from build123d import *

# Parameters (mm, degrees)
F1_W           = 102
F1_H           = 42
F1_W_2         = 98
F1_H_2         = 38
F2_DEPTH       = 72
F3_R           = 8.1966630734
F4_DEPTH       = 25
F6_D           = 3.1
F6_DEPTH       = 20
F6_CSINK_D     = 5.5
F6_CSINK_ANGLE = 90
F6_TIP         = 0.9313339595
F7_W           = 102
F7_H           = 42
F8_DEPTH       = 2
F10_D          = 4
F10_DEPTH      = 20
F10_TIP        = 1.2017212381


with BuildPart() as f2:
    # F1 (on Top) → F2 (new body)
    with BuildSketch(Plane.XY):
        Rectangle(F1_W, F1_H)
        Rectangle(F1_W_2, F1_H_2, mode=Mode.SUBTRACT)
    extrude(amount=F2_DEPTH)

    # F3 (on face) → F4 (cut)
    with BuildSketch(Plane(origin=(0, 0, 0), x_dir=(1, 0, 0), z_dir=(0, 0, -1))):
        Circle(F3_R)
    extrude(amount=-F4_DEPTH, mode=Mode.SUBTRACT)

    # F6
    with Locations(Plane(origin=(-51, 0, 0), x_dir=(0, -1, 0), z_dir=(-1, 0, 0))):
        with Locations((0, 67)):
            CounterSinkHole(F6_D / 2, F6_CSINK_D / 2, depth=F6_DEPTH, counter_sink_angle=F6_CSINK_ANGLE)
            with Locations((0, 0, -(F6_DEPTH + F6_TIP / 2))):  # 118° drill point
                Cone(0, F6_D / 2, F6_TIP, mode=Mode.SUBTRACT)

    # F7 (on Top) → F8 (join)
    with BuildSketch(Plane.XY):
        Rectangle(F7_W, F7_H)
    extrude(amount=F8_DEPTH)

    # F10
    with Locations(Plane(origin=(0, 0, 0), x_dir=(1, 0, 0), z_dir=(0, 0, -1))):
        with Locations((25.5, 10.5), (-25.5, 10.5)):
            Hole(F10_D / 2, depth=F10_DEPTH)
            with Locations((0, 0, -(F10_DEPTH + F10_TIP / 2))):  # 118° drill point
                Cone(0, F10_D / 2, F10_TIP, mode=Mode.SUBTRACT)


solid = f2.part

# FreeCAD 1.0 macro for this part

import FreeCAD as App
import Part
import Sketcher
from FreeCAD import Vector
Q = App.Units.Quantity


def add_polygon(sketch, points):
    """Adds a closed chain of lines whose ends are joined by coincident constraints."""
    first, n = sketch.GeometryCount, len(points)
    for a, b in zip(points, points[1:] + points[:1]):
        sketch.addGeometry(Part.LineSegment(App.Vector(*a, 0), App.Vector(*b, 0)), False)
    for i in range(n):
        sketch.addConstraint(Sketcher.Constraint("Coincident", first + i, 2, first + (i + 1) % n, 1))

doc = App.newDocument("Part")
body = doc.addObject("PartDesign::Body", "Body")

# Sketch on XY plane
sketch1 = doc.addObject("Sketcher::SketchObject", "Sketch")
body.addObject(sketch1)
sketch1.AttachmentSupport = (doc.XY_Plane, [""])
sketch1.MapMode = "FlatFace"
add_polygon(sketch1, [(-51, 21), (-51, -21), (51, -21), (51, 21)])  # lines 0-3
add_polygon(sketch1, [(49, -19), (-49, -19), (-49, 19), (49, 19)])  # lines 4-7
sketch1.addConstraint([
    Sketcher.Constraint("Vertical", 0),
    Sketcher.Constraint("Horizontal", 1),
    Sketcher.Constraint("Vertical", 2),
    Sketcher.Constraint("Horizontal", 3),
    Sketcher.Constraint("Horizontal", 4),
    Sketcher.Constraint("Vertical", 5),
    Sketcher.Constraint("Horizontal", 6),
    Sketcher.Constraint("Vertical", 7),
    Sketcher.Constraint("Symmetric", 0, 2, 2, 2, -1, 1),
    Sketcher.Constraint("Symmetric", 4, 2, 6, 2, -1, 1),
    Sketcher.Constraint("DistanceX", 1, 1, 1, 2, Q("102 mm")),
    Sketcher.Constraint("DistanceX", 4, 2, 4, 1, Q("98 mm")),
    Sketcher.Constraint("DistanceY", 0, 2, 0, 1, Q("42 mm")),
    Sketcher.Constraint("DistanceY", 5, 1, 5, 2, Q("38 mm")),
])
pad1 = doc.addObject("PartDesign::Pad", "Pad")
body.addObject(pad1)
pad1.Profile = sketch1
pad1.Length = 72

# Sketch on XY plane
sketch2 = doc.addObject("Sketcher::SketchObject", "Sketch001")
body.addObject(sketch2)
sketch2.AttachmentSupport = (doc.XY_Plane, [""])
sketch2.MapMode = "FlatFace"
sketch2.addGeometry(Part.Circle(Vector(0, 0, 0), Vector(0, 0, 1), 8), False)
sketch2.addConstraint([
    Sketcher.Constraint("Coincident", 0, 3, -1, 1),
    Sketcher.Constraint("Diameter", 0, Q("16.393326 mm")),
])
pocket1 = doc.addObject("PartDesign::Pocket", "Pocket")
body.addObject(pocket1)
pocket1.Profile = sketch2
pocket1.Length = 25
pocket1.Reversed = True

# Sketch on YZ plane
sketch3 = doc.addObject("Sketcher::SketchObject", "Sketch002")
body.addObject(sketch3)
sketch3.AttachmentSupport = (doc.YZ_Plane, [""])
sketch3.MapMode = "FlatFace"
sketch3.AttachmentOffset = App.Placement(Vector(0, 0, -51), App.Rotation())
sketch3.addGeometry(Part.Circle(Vector(0, 67, 0), Vector(0, 0, 1), 1.6), False)
sketch3.addConstraint([
    Sketcher.Constraint("PointOnObject", 0, 3, -2),
    Sketcher.Constraint("Diameter", 0, Q("3.1 mm")),
    Sketcher.Constraint("DistanceY", -1, 1, 0, 3, Q("67 mm")),
])
doc.recompute()
hole = doc.addObject("PartDesign::Hole", "Hole")
body.addObject(hole)
hole.Profile = sketch3
hole.ThreadType = "None"
hole.Diameter = 3.1
hole.DepthType = "Dimension"
hole.Depth = 20
hole.DrillPoint = "Angled"
hole.DrillPointAngle = 118
hole.HoleCutType = "Countersink"
hole.HoleCutDiameter = 5.5
hole.HoleCutCountersinkAngle = 90
hole.Reversed = True

# Sketch on XY plane
sketch4 = doc.addObject("Sketcher::SketchObject", "Sketch003")
body.addObject(sketch4)
sketch4.AttachmentSupport = (doc.XY_Plane, [""])
sketch4.MapMode = "FlatFace"
add_polygon(sketch4, [(-51, 21), (-51, -21), (51, -21), (51, 21)])  # lines 0-3
sketch4.addConstraint([
    Sketcher.Constraint("Vertical", 0),
    Sketcher.Constraint("Horizontal", 1),
    Sketcher.Constraint("Vertical", 2),
    Sketcher.Constraint("Horizontal", 3),
    Sketcher.Constraint("Symmetric", 0, 2, 2, 2, -1, 1),
    Sketcher.Constraint("DistanceX", 1, 1, 1, 2, Q("102 mm")),
    Sketcher.Constraint("DistanceY", 0, 2, 0, 1, Q("42 mm")),
])
pad2 = doc.addObject("PartDesign::Pad", "Pad001")
body.addObject(pad2)
pad2.Profile = sketch4
pad2.Length = 2

# Sketch on XY plane
sketch5 = doc.addObject("Sketcher::SketchObject", "Sketch004")
body.addObject(sketch5)
sketch5.AttachmentSupport = (doc.XY_Plane, [""])
sketch5.MapMode = "FlatFace"
sketch5.addGeometry([
    Part.Circle(Vector(25.5, -10.5, 0), Vector(0, 0, 1), 2),
    Part.Circle(Vector(-25.5, -10.5, 0), Vector(0, 0, 1), 2),
], False)
sketch5.addConstraint([
    Sketcher.Constraint("Equal", 0, 1),
    Sketcher.Constraint("Symmetric", 0, 3, 1, 3, -2),
    Sketcher.Constraint("Diameter", 0, Q("4 mm")),
    Sketcher.Constraint("DistanceX", 1, 3, 0, 3, Q("51 mm")),
    Sketcher.Constraint("DistanceY", 0, 3, -1, 1, Q("10.5 mm")),
])
doc.recompute()
hole2 = doc.addObject("PartDesign::Hole", "Hole001")
body.addObject(hole2)
hole2.Profile = sketch5
hole2.ThreadType = "None"
hole2.Diameter = 4
hole2.DepthType = "Dimension"
hole2.Depth = 20
hole2.DrillPoint = "Angled"
hole2.DrillPointAngle = 118
hole2.Reversed = True

doc.recompute()
